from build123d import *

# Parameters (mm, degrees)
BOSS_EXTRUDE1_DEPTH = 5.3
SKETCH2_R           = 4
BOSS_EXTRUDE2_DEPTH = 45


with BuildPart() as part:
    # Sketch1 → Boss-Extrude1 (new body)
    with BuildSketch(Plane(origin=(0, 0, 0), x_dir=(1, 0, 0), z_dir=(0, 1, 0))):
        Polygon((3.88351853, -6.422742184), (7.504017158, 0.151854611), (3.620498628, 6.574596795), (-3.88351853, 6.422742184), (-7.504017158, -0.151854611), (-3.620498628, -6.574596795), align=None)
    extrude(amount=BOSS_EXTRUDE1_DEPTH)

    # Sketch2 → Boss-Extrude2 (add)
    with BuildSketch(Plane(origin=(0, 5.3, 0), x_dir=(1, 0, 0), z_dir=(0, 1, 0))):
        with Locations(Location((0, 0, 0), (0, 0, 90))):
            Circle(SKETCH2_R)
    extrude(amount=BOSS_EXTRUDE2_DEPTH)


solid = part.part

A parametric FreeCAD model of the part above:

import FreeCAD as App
import Part
import Sketcher

V = App.Vector


def add_polygon(sketch, points):
    """Adds a closed chain of lines whose ends are joined by coincident constraints."""
    first, n = sketch.GeometryCount, len(points)
    for a, b in zip(points, points[1:] + points[:1]):
        sketch.addGeometry(Part.LineSegment(App.Vector(*a, 0), App.Vector(*b, 0)), False)
    for i in range(n):
        sketch.addConstraint(Sketcher.Constraint("Coincident", first + i, 2, first + (i + 1) % n, 1))

doc = App.newDocument("Part")
body = doc.addObject("PartDesign::Body", "Body")

# Sketch on XZ plane
sketch1 = body.newObject("Sketcher::SketchObject", "Sketch")
sketch1.AttachmentSupport = (doc.getObject("XZ_Plane"), [""])
sketch1.MapMode = "FlatFace"
add_polygon(sketch1, [(3.883519, 6.422742), (7.504017, -0.151855), (3.620499, -6.574597), (-3.883519, -6.422742), (-7.504017, 0.151855), (-3.620499, 6.574597)])  # lines 0-5
sketch1.addConstraint([
    Sketcher.Constraint("Symmetric", 0, 2, 3, 2, -1, 1),
    Sketcher.Constraint("Symmetric", 1, 2, 4, 2, -1, 1),
    Sketcher.Constraint("Symmetric", 2, 2, 5, 2, -1, 1),
    Sketcher.Constraint("Equal", 0, 1),
    Sketcher.Constraint("Equal", 1, 2),
    Sketcher.Constraint("DistanceX", -1, 1, 1, 2, 3.620499),
    Sketcher.Constraint("DistanceX", 3, 2, 2, 2, 3.620499),
    Sketcher.Constraint("DistanceX", 2, 2, -1, 1, 3.883519),
    Sketcher.Constraint("DistanceY", 1, 2, 3, 2, 6.726451),
])
pad1 = body.newObject("PartDesign::Pad", "Pad")
pad1.Profile = sketch1
pad1.Length = 5.3
pad1.Reversed = True

# Sketch on XZ plane
sketch2 = body.newObject("Sketcher::SketchObject", "Sketch001")
sketch2.AttachmentSupport = (doc.getObject("XZ_Plane"), [""])
sketch2.MapMode = "FlatFace"
sketch2.AttachmentOffset = App.Placement(V(0, 0, -5.3), App.Rotation())
sketch2.addGeometry(Part.Circle(V(0, 0, 0), V(0, 0, 1), 4), False)
sketch2.addConstraint([
    Sketcher.Constraint("Coincident", 0, 3, -1, 1),
    Sketcher.Constraint("Diameter", 0, 8.0),
])
pad2 = body.newObject("PartDesign::Pad", "Pad001")
pad2.Profile = sketch2
pad2.Length = 45
pad2.Reversed = True

doc.recompute()
